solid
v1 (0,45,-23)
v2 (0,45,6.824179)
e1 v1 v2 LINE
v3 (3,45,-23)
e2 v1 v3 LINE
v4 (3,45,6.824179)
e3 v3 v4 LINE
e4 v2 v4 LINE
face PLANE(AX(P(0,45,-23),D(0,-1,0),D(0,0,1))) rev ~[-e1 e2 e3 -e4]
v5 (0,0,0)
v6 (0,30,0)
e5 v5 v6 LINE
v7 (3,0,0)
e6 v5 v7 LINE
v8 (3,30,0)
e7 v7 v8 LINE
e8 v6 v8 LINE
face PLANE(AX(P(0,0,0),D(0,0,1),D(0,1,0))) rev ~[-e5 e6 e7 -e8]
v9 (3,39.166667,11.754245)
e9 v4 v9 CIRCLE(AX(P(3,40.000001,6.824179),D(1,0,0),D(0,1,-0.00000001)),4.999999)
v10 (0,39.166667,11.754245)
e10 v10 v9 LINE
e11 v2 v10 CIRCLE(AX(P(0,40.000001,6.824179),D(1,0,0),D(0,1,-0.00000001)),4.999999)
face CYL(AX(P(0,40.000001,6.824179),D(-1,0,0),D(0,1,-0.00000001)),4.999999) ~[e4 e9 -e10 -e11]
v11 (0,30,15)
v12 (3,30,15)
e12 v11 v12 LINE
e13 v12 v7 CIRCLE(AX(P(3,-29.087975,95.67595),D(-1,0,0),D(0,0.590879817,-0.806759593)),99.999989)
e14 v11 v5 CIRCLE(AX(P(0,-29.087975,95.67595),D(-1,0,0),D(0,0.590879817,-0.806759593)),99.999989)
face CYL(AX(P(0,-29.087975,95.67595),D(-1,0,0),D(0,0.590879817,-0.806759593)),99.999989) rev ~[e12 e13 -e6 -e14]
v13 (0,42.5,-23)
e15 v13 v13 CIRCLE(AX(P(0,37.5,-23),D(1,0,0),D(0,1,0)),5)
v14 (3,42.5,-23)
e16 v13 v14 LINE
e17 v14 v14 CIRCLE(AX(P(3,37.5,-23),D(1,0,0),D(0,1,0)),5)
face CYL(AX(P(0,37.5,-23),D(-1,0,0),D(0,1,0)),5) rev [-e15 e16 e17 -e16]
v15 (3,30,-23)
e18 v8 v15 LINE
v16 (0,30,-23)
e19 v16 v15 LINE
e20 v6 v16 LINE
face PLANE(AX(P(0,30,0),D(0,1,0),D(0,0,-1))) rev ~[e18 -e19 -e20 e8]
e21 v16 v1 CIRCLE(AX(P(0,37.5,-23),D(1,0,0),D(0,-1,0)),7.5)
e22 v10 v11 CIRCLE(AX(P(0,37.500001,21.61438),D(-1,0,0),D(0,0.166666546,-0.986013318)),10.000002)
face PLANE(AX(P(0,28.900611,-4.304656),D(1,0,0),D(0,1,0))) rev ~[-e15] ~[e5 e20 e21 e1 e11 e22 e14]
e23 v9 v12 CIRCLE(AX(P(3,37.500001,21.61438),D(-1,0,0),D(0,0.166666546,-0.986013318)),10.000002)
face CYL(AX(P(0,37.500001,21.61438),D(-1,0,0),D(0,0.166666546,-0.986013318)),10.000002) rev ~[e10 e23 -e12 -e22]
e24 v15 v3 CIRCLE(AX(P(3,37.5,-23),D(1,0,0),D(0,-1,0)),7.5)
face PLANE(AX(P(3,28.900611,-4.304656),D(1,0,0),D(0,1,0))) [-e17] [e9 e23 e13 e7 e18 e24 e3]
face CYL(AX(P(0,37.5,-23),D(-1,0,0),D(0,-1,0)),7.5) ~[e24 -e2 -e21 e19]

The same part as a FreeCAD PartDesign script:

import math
import FreeCAD as App
import Part
import Sketcher

V = App.Vector
Q = App.Units.Quantity

doc = App.newDocument("Part")
body = doc.addObject("PartDesign::Body", "Body")

# Sketch on YZ plane
sketch1 = body.newObject("Sketcher::SketchObject", "Sketch")
sketch1.AttachmentSupport = (doc.getObject("YZ_Plane"), [""])
sketch1.MapMode = "FlatFace"
sketch1.addGeometry([
    Part.ArcOfCircle(Part.Circle(V(-29.1, 95.7, 0), V(0, 0, 1), 100), math.radians(-73.09), math.radians(-53.78)),  # 0
    Part.LineSegment(V(0, 0, 0), V(30, 0, 0)),  # 1
    Part.LineSegment(V(30, 0, 0), V(30, -23, 0)),  # 2
    Part.ArcOfCircle(Part.Circle(V(37.5, -23, 0), V(0, 0, 1), 7.5), math.radians(180), math.radians(360)),  # 3
    Part.LineSegment(V(45, -23, 0), V(45, 6.8, 0)),  # 4
    Part.ArcOfCircle(Part.Circle(V(40, 6.8, 0), V(0, 0, 1), 5), math.radians(0), math.radians(100)),  # 5
    Part.ArcOfCircle(Part.Circle(V(37.5, 21.6, 0), V(0, 0, 1), 10), math.radians(-139), math.radians(-80)),  # 6
    Part.Circle(V(37.5, -23, 0), V(0, 0, 1), 5),  # 7
], False)
sketch1.addConstraint([
    Sketcher.Constraint("Coincident", 0, 1, 1, 1),
    Sketcher.Constraint("Coincident", 1, 2, 2, 1),
    Sketcher.Constraint("Tangent", 2, 2, 3, 1),
    Sketcher.Constraint("Tangent", 3, 2, 4, 1),
    Sketcher.Constraint("Tangent", 4, 2, 5, 1),
    Sketcher.Constraint("Tangent", 5, 2, 6, 2),
    Sketcher.Constraint("Coincident", 6, 1, 0, 2),
    Sketcher.Constraint("Horizontal", 1),
    Sketcher.Constraint("Vertical", 2),
    Sketcher.Constraint("Vertical", 4),
    Sketcher.Constraint("Coincident", 0, 1, -1, 1),
    Sketcher.Constraint("Coincident", 7, 3, 3, 3),
    Sketcher.Constraint("Equal", 5, 7),
    Sketcher.Constraint("Vertical", 3, 3, 6, 3),
    Sketcher.Constraint("Vertical", 2, 2, 6, 1),
    Sketcher.Constraint("Diameter", 7, Q("10 mm")),
    Sketcher.Constraint("Radius", 3, Q("7.5 mm")),
    Sketcher.Constraint("DistanceX", 1, 1, 1, 2, Q("30 mm")),
    Sketcher.Constraint("DistanceY", 2, 2, 2, 1, Q("23 mm")),
    Sketcher.Constraint("DistanceY", -1, 1, 6, 1, Q("15 mm")),
    Sketcher.Constraint("Radius", 0, Q("99.999989 mm")),
    Sketcher.Constraint("Radius", 6, Q("10.000002 mm")),
])
pad1 = body.newObject("PartDesign::Pad", "Pad")
pad1.Profile = sketch1
pad1.Length = 3

doc.recompute()
